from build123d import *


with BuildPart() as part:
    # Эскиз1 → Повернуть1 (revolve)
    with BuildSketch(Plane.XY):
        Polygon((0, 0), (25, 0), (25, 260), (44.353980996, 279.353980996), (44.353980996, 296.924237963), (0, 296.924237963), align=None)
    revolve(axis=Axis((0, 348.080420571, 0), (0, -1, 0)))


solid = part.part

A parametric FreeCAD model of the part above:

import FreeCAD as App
import Part
import Sketcher
from FreeCAD import Vector
Q = App.Units.Quantity

doc = App.newDocument("Part")
params = doc.addObject("Spreadsheet::Sheet", "Params")
for row, (alias, value) in enumerate([
    ("sketch1_width", "25 mm"),
    ("sketch1_height", "260 mm"),
    ("revolution_angle", "360 deg"),
], start=1):
    params.set(f"A{row}", alias)
    params.set(f"B{row}", "=" + value)
    params.setAlias(f"B{row}", alias)

body = doc.addObject("PartDesign::Body", "Body")

# Sketch on XY plane
sketch1 = doc.addObject("Sketcher::SketchObject", "Sketch")
body.addObject(sketch1)
sketch1.AttachmentSupport = (doc.XY_Plane, [""])
sketch1.MapMode = "FlatFace"
sketch1.addGeometry([
    Part.LineSegment(Vector(0, 0, 0), Vector(25, 0, 0)),  # 0
    Part.LineSegment(Vector(25, 0, 0), Vector(25, 260, 0)),  # 1
    Part.LineSegment(Vector(25, 260, 0), Vector(44, 279, 0)),  # 2
    Part.LineSegment(Vector(44, 279, 0), Vector(44, 297, 0)),  # 3
    Part.LineSegment(Vector(44, 297, 0), Vector(0, 297, 0)),  # 4
    Part.LineSegment(Vector(0, 297, 0), Vector(0, 0, 0)),  # 5
], False)
sketch1.addConstraint([
    Sketcher.Constraint("Coincident", 0, 2, 1, 1),
    Sketcher.Constraint("Coincident", 1, 2, 2, 1),
    Sketcher.Constraint("Coincident", 2, 2, 3, 1),
    Sketcher.Constraint("Coincident", 3, 2, 4, 1),
    Sketcher.Constraint("Coincident", 4, 2, 5, 1),
    Sketcher.Constraint("Coincident", 5, 2, 0, 1),
    Sketcher.Constraint("Horizontal", 0),
    Sketcher.Constraint("Vertical", 1),
    Sketcher.Constraint("Vertical", 3),
    Sketcher.Constraint("Horizontal", 4),
    Sketcher.Constraint("Vertical", 5),
    Sketcher.Constraint("Coincident", 5, 2, -1, 1),
    Sketcher.Constraint("DistanceX", 0, 1, 0, 2, Q("25 mm")),
    Sketcher.Constraint("DistanceY", 1, 1, 1, 2, Q("260 mm")),
    Sketcher.Constraint("Angle", 2, Q("45 deg")),
    Sketcher.Constraint("DistanceX", 4, 2, 4, 1, Q("44.353981 mm")),
    Sketcher.Constraint("DistanceY", 3, 1, 3, 2, Q("17.570257 mm")),
])
sketch1.setExpression("Constraints[12]", "Params.sketch1_width")
sketch1.setExpression("Constraints[13]", "Params.sketch1_height")
revolution = doc.addObject("PartDesign::Revolution", "Revolution")
body.addObject(revolution)
revolution.Profile = sketch1
revolution.ReferenceAxis = (sketch1, ["V_Axis"])
revolution.setExpression("Angle", "Params.revolution_angle")

doc.recompute()
